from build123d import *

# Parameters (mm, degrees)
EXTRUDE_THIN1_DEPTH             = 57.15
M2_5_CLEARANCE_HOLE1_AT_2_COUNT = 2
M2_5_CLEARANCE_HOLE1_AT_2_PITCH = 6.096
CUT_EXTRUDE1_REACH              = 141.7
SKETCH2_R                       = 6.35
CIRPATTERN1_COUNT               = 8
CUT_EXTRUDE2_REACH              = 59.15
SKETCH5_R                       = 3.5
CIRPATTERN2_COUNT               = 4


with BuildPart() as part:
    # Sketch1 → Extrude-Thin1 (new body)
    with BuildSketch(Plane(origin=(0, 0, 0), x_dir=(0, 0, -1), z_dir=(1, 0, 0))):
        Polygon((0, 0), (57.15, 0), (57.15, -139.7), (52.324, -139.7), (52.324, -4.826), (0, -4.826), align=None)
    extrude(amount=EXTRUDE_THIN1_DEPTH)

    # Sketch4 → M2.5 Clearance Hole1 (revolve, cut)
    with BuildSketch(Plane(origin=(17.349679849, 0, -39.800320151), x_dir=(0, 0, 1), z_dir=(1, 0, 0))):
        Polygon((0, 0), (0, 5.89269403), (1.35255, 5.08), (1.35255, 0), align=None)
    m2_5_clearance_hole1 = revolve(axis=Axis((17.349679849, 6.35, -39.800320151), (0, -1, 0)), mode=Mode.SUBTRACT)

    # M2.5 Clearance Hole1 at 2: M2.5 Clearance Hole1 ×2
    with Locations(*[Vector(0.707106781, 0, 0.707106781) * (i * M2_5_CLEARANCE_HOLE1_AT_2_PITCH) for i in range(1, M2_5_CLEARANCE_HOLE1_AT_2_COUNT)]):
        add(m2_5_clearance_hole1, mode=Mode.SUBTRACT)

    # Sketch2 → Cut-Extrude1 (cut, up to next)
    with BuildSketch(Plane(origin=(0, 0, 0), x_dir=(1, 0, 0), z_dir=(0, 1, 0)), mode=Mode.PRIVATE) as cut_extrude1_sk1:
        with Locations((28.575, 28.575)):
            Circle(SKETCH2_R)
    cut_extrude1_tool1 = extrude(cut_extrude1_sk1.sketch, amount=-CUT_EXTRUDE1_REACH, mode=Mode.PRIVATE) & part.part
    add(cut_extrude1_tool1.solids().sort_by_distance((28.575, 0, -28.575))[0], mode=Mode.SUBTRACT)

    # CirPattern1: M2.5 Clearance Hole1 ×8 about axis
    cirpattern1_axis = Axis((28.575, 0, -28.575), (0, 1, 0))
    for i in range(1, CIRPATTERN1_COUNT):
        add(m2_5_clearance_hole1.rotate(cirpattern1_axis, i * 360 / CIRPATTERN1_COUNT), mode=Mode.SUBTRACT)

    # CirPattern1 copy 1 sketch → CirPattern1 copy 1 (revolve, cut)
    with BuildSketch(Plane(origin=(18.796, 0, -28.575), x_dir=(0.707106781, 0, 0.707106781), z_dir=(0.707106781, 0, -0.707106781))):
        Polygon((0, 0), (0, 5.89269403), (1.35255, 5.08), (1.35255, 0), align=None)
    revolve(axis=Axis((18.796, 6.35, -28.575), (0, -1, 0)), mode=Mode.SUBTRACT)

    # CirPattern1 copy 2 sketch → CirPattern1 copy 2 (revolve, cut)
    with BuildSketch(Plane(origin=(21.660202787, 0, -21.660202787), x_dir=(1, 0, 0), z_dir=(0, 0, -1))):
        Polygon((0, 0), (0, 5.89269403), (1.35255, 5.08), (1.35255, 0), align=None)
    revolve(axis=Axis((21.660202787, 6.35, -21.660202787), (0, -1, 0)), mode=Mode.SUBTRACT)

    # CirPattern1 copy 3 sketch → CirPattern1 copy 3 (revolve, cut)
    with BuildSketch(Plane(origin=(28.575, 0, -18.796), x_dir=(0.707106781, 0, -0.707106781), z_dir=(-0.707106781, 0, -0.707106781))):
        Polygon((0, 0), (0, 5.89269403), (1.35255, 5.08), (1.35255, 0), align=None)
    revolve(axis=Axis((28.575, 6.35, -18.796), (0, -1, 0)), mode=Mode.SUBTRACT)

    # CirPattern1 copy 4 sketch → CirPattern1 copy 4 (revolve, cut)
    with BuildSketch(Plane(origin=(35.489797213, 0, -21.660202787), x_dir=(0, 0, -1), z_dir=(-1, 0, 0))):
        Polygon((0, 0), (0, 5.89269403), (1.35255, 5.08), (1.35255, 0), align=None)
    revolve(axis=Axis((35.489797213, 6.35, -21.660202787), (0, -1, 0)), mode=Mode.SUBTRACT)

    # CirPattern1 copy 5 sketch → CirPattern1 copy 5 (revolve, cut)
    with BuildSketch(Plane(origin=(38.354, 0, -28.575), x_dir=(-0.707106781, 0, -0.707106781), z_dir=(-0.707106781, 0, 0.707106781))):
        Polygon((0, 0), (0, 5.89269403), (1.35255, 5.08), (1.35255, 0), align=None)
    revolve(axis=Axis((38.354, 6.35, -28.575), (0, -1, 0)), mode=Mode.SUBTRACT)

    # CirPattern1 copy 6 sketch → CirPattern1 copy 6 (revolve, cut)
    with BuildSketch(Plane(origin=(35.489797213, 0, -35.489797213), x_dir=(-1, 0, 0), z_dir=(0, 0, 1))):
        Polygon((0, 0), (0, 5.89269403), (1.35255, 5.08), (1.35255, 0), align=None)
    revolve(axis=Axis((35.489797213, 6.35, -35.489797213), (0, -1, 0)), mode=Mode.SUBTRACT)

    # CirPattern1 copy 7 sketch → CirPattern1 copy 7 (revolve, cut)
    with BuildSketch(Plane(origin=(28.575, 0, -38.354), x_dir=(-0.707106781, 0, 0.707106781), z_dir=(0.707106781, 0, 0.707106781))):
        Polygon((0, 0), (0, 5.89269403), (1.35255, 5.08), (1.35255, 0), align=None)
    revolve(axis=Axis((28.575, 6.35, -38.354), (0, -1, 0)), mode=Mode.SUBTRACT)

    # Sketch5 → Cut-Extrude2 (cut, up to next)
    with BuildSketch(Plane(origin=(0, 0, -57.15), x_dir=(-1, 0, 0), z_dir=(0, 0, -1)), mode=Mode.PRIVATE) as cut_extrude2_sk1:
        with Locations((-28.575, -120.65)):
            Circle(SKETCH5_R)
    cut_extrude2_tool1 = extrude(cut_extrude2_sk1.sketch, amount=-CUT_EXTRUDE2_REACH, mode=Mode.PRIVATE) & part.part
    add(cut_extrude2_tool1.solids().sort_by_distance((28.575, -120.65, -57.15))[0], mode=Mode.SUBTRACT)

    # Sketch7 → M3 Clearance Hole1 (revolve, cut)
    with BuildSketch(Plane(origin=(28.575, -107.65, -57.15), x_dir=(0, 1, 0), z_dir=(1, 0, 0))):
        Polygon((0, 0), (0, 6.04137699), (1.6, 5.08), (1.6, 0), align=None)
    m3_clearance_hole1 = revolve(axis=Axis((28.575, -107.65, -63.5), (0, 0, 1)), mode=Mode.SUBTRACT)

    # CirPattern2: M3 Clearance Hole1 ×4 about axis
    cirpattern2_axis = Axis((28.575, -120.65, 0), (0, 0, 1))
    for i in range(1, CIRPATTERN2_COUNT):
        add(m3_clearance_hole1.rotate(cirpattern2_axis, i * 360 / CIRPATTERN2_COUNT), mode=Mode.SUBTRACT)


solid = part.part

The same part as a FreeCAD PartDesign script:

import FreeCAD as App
import Part
import Sketcher
from FreeCAD import Vector
Q = App.Units.Quantity

doc = App.newDocument("Part")
body = doc.addObject("PartDesign::Body", "Body")

# Sketch on YZ plane
sketch1 = body.newObject("Sketcher::SketchObject", "Sketch")
sketch1.AttachmentSupport = (doc.getObject("YZ_Plane"), [""])
sketch1.MapMode = "FlatFace"
sketch1.addGeometry(Part.LineSegment(Vector(0, -57.1, 0), Vector(0, 0, 0)), False)
sketch1.addGeometry(Part.LineSegment(Vector(0, 0, 0), Vector(-4.8, 0, 0)), False)
sketch1.addGeometry(Part.LineSegment(Vector(-4.8, 0, 0), Vector(-4.8, -52.3, 0)), False)
sketch1.addGeometry(Part.LineSegment(Vector(-4.8, -52.3, 0), Vector(-139.7, -52.3, 0)), False)
sketch1.addGeometry(Part.LineSegment(Vector(-139.7, -52.3, 0), Vector(-139.7, -57.1, 0)), False)
sketch1.addGeometry(Part.LineSegment(Vector(-139.7, -57.1, 0), Vector(0, -57.1, 0)), False)
sketch1.addConstraint(Sketcher.Constraint("Coincident", 0, 2, 1, 1))
sketch1.addConstraint(Sketcher.Constraint("Coincident", 1, 2, 2, 1))
sketch1.addConstraint(Sketcher.Constraint("Coincident", 2, 2, 3, 1))
sketch1.addConstraint(Sketcher.Constraint("Coincident", 3, 2, 4, 1))
sketch1.addConstraint(Sketcher.Constraint("Coincident", 4, 2, 5, 1))
sketch1.addConstraint(Sketcher.Constraint("Coincident", 5, 2, 0, 1))
sketch1.addConstraint(Sketcher.Constraint("Vertical", 0))
sketch1.addConstraint(Sketcher.Constraint("Horizontal", 1))
sketch1.addConstraint(Sketcher.Constraint("Vertical", 2))
sketch1.addConstraint(Sketcher.Constraint("Horizontal", 3))
sketch1.addConstraint(Sketcher.Constraint("Vertical", 4))
sketch1.addConstraint(Sketcher.Constraint("Horizontal", 5))
sketch1.addConstraint(Sketcher.Constraint("Coincident", 0, 2, -1, 1))
sketch1.addConstraint(Sketcher.Constraint("Equal", 1, 4))
sketch1.addConstraint(Sketcher.Constraint("DistanceX", 5, 1, 5, 2, Q("5.5 in")))
sketch1.addConstraint(Sketcher.Constraint("DistanceX", 1, 2, 1, 1, Q("0.19 in")))
sketch1.addConstraint(Sketcher.Constraint("DistanceY", 0, 1, 0, 2, Q("2.25 in")))
pad1 = body.newObject("PartDesign::Pad", "Pad")
pad1.Profile = sketch1
pad1.Length = Q("2.25 in")

# Sketch on YZ plane
sketch2 = body.newObject("Sketcher::SketchObject", "Sketch001")
sketch2.AttachmentSupport = (doc.getObject("YZ_Plane"), [""])
sketch2.MapMode = "FlatFace"
sketch2.AttachmentOffset = App.Placement(Vector(0, 0, 17.34968), App.Rotation())
sketch2.addGeometry(Part.LineSegment(Vector(-5.9, -39.8, 0), Vector(0, -39.8, 0)), False)
sketch2.addGeometry(Part.LineSegment(Vector(0, -39.8, 0), Vector(0, -38.4, 0)), False)
sketch2.addGeometry(Part.LineSegment(Vector(0, -38.4, 0), Vector(-5.1, -38.4, 0)), False)
sketch2.addGeometry(Part.LineSegment(Vector(-5.1, -38.4, 0), Vector(-5.9, -39.8, 0)), False)
sketch2.addGeometry(Part.LineSegment(Vector(0, -39.8, 0), Vector(-5.9, -39.8, 0)), True)  # axis
sketch2.addConstraint(Sketcher.Constraint("Coincident", 0, 2, 1, 1))
sketch2.addConstraint(Sketcher.Constraint("Coincident", 1, 2, 2, 1))
sketch2.addConstraint(Sketcher.Constraint("Coincident", 2, 2, 3, 1))
sketch2.addConstraint(Sketcher.Constraint("Coincident", 3, 2, 0, 1))
sketch2.addConstraint(Sketcher.Constraint("Horizontal", 0))
sketch2.addConstraint(Sketcher.Constraint("Vertical", 1))
sketch2.addConstraint(Sketcher.Constraint("Horizontal", 2))
sketch2.addConstraint(Sketcher.Constraint("Horizontal", 4))
sketch2.addConstraint(Sketcher.Constraint("Coincident", 4, 1, 0, 2))
sketch2.addConstraint(Sketcher.Constraint("PointOnObject", 0, 2, -2))
sketch2.addConstraint(Sketcher.Constraint("Equal", 0, 4))
sketch2.addConstraint(Sketcher.Constraint("DistanceX", 2, 2, 2, 1, Q("0.2 in")))
sketch2.addConstraint(Sketcher.Constraint("Angle", 3, Q("-121 deg")))
sketch2.addConstraint(Sketcher.Constraint("DistanceY", 1, 1, 1, 2, Q("1.35255 mm")))
sketch2.addConstraint(Sketcher.Constraint("DistanceY", 0, 2, -1, 1, Q("39.80032 mm")))
groove = body.newObject("PartDesign::Groove", "Groove")
groove.Profile = sketch2
groove.ReferenceAxis = (sketch2, ["Axis0"])
groove.Angle = 360
doc.recompute()

datumline = body.newObject("PartDesign::Line", "DatumLine")
datumline.Placement = App.Placement(Vector(0, 0, 0), App.Rotation(Vector(0, 0, 1), Vector(0.707106781, 0, 0.707106781)))
linearpattern = body.newObject("PartDesign::LinearPattern", "LinearPattern")
linearpattern.Originals = [groove]
linearpattern.Direction = (datumline, [""])
linearpattern.Mode = "offset"
linearpattern.Offset = Q("0.24 in")
linearpattern.Occurrences = 2
body.Tip = linearpattern

# Sketch on XZ plane
sketch3 = body.newObject("Sketcher::SketchObject", "Sketch002")
sketch3.AttachmentSupport = (doc.getObject("XZ_Plane"), [""])
sketch3.MapMode = "FlatFace"
sketch3.addGeometry(Part.Circle(Vector(29, -29, 0), Vector(0, 0, 1), 6), False)
sketch3.addConstraint(Sketcher.Constraint("Diameter", 0, Q("0.5 in")))
sketch3.addConstraint(Sketcher.Constraint("DistanceX", -1, 1, 0, 3, Q("1.125 in")))
sketch3.addConstraint(Sketcher.Constraint("DistanceY", 0, 3, -1, 1, Q("1.125 in")))
pocket1 = body.newObject("PartDesign::Pocket", "Pocket")
pocket1.Profile = sketch3
pocket1.Type = "UpToFirst"
pocket1.Reversed = True
doc.recompute()

datumline2 = body.newObject("PartDesign::Line", "DatumLine001")
datumline2.Placement = App.Placement(Vector(28.575, 0, -28.575), App.Rotation(Vector(0, 0, 1), Vector(0, 1, 0)))
polarpattern = body.newObject("PartDesign::PolarPattern", "PolarPattern")
polarpattern.Originals = [groove]
polarpattern.Axis = (datumline2, [""])
polarpattern.Angle = 360
polarpattern.Occurrences = 8
body.Tip = polarpattern

# Sketch on an angled plane
sketch4 = body.newObject("Sketcher::SketchObject", "Sketch003")
sketch4.Placement = App.Placement(Vector(18.796, 0, -28.575), App.Rotation(Vector(0.707106781, 0, 0.707106781), Vector(0, -0.999999999, 0), Vector(0.707106781, 0, -0.707106781), "ZXY"))
sketch4.addGeometry(Part.LineSegment(Vector(0, 5.9, 0), Vector(0, 0, 0)), False)
sketch4.addGeometry(Part.LineSegment(Vector(0, 0, 0), Vector(1.4, 0, 0)), False)
sketch4.addGeometry(Part.LineSegment(Vector(1.4, 0, 0), Vector(1.4, 5.1, 0)), False)
sketch4.addGeometry(Part.LineSegment(Vector(1.4, 5.1, 0), Vector(0, 5.9, 0)), False)
sketch4.addConstraint(Sketcher.Constraint("Coincident", 0, 2, 1, 1))
sketch4.addConstraint(Sketcher.Constraint("Coincident", 1, 2, 2, 1))
sketch4.addConstraint(Sketcher.Constraint("Coincident", 2, 2, 3, 1))
sketch4.addConstraint(Sketcher.Constraint("Coincident", 3, 2, 0, 1))
sketch4.addConstraint(Sketcher.Constraint("Vertical", 0))
sketch4.addConstraint(Sketcher.Constraint("Horizontal", 1))
sketch4.addConstraint(Sketcher.Constraint("Vertical", 2))
sketch4.addConstraint(Sketcher.Constraint("Coincident", 0, 2, -1, 1))
sketch4.addConstraint(Sketcher.Constraint("DistanceY", 2, 1, 2, 2, Q("0.2 in")))
sketch4.addConstraint(Sketcher.Constraint("Angle", 3, Q("149 deg")))
sketch4.addConstraint(Sketcher.Constraint("DistanceX", 1, 1, 1, 2, Q("1.35255 mm")))
groove2 = body.newObject("PartDesign::Groove", "Groove001")
groove2.Profile = sketch4
groove2.ReferenceAxis = (sketch4, ["V_Axis"])
groove2.Angle = 360

# Sketch on XY plane
sketch5 = body.newObject("Sketcher::SketchObject", "Sketch004")
sketch5.AttachmentSupport = (doc.getObject("XY_Plane"), [""])
sketch5.MapMode = "FlatFace"
sketch5.AttachmentOffset = App.Placement(Vector(0, 0, -21.660203), App.Rotation())
sketch5.addGeometry(Part.LineSegment(Vector(21.7, -5.9, 0), Vector(21.7, 0, 0)), False)
sketch5.addGeometry(Part.LineSegment(Vector(21.7, 0, 0), Vector(23, 0, 0)), False)
sketch5.addGeometry(Part.LineSegment(Vector(23, 0, 0), Vector(23, -5.1, 0)), False)
sketch5.addGeometry(Part.LineSegment(Vector(23, -5.1, 0), Vector(21.7, -5.9, 0)), False)
sketch5.addGeometry(Part.LineSegment(Vector(21.7, 0, 0), Vector(21.7, -5.9, 0)), True)  # axis
sketch5.addConstraint(Sketcher.Constraint("Coincident", 0, 2, 1, 1))
sketch5.addConstraint(Sketcher.Constraint("Coincident", 1, 2, 2, 1))
sketch5.addConstraint(Sketcher.Constraint("Coincident", 2, 2, 3, 1))
sketch5.addConstraint(Sketcher.Constraint("Coincident", 3, 2, 0, 1))
sketch5.addConstraint(Sketcher.Constraint("Vertical", 0))
sketch5.addConstraint(Sketcher.Constraint("Horizontal", 1))
sketch5.addConstraint(Sketcher.Constraint("Vertical", 2))
sketch5.addConstraint(Sketcher.Constraint("Vertical", 4))
sketch5.addConstraint(Sketcher.Constraint("Coincident", 4, 1, 0, 2))
sketch5.addConstraint(Sketcher.Constraint("PointOnObject", 0, 2, -1))
sketch5.addConstraint(Sketcher.Constraint("Equal", 0, 4))
sketch5.addConstraint(Sketcher.Constraint("DistanceY", 2, 2, 2, 1, Q("0.2 in")))
sketch5.addConstraint(Sketcher.Constraint("Angle", 3, Q("-149 deg")))
sketch5.addConstraint(Sketcher.Constraint("DistanceX", 1, 1, 1, 2, Q("1.35255 mm")))
sketch5.addConstraint(Sketcher.Constraint("DistanceX", -1, 1, 0, 2, Q("21.660203 mm")))
groove3 = body.newObject("PartDesign::Groove", "Groove002")
groove3.Profile = sketch5
groove3.ReferenceAxis = (sketch5, ["Axis0"])
groove3.Angle = 360

# Sketch on an angled plane
sketch6 = body.newObject("Sketcher::SketchObject", "Sketch005")
sketch6.Placement = App.Placement(Vector(28.575, 0, -18.796), App.Rotation(Vector(0.707106781, 0, -0.707106781), Vector(0, -0.999999999, 0), Vector(-0.707106781, 0, -0.707106781), "ZXY"))
sketch6.addGeometry(Part.LineSegment(Vector(0, 5.9, 0), Vector(0, 0, 0)), False)
sketch6.addGeometry(Part.LineSegment(Vector(0, 0, 0), Vector(1.4, 0, 0)), False)
sketch6.addGeometry(Part.LineSegment(Vector(1.4, 0, 0), Vector(1.4, 5.1, 0)), False)
sketch6.addGeometry(Part.LineSegment(Vector(1.4, 5.1, 0), Vector(0, 5.9, 0)), False)
sketch6.addConstraint(Sketcher.Constraint("Coincident", 0, 2, 1, 1))
sketch6.addConstraint(Sketcher.Constraint("Coincident", 1, 2, 2, 1))
sketch6.addConstraint(Sketcher.Constraint("Coincident", 2, 2, 3, 1))
sketch6.addConstraint(Sketcher.Constraint("Coincident", 3, 2, 0, 1))
sketch6.addConstraint(Sketcher.Constraint("Vertical", 0))
sketch6.addConstraint(Sketcher.Constraint("Horizontal", 1))
sketch6.addConstraint(Sketcher.Constraint("Vertical", 2))
sketch6.addConstraint(Sketcher.Constraint("Coincident", 0, 2, -1, 1))
sketch6.addConstraint(Sketcher.Constraint("DistanceY", 2, 1, 2, 2, Q("0.2 in")))
sketch6.addConstraint(Sketcher.Constraint("Angle", 3, Q("149 deg")))
sketch6.addConstraint(Sketcher.Constraint("DistanceX", 1, 1, 1, 2, Q("1.35255 mm")))
groove4 = body.newObject("PartDesign::Groove", "Groove003")
groove4.Profile = sketch6
groove4.ReferenceAxis = (sketch6, ["V_Axis"])
groove4.Angle = 360

# Sketch on YZ plane
sketch7 = body.newObject("Sketcher::SketchObject", "Sketch006")
sketch7.AttachmentSupport = (doc.getObject("YZ_Plane"), [""])
sketch7.MapMode = "FlatFace"
sketch7.AttachmentOffset = App.Placement(Vector(0, 0, 35.489797), App.Rotation())
sketch7.addGeometry(Part.LineSegment(Vector(-5.9, -21.7, 0), Vector(0, -21.7, 0)), False)
sketch7.addGeometry(Part.LineSegment(Vector(0, -21.7, 0), Vector(0, -23, 0)), False)
sketch7.addGeometry(Part.LineSegment(Vector(0, -23, 0), Vector(-5.1, -23, 0)), False)
sketch7.addGeometry(Part.LineSegment(Vector(-5.1, -23, 0), Vector(-5.9, -21.7, 0)), False)
sketch7.addGeometry(Part.LineSegment(Vector(0, -21.7, 0), Vector(-5.9, -21.7, 0)), True)  # axis
sketch7.addConstraint(Sketcher.Constraint("Coincident", 0, 2, 1, 1))
sketch7.addConstraint(Sketcher.Constraint("Coincident", 1, 2, 2, 1))
sketch7.addConstraint(Sketcher.Constraint("Coincident", 2, 2, 3, 1))
sketch7.addConstraint(Sketcher.Constraint("Coincident", 3, 2, 0, 1))
sketch7.addConstraint(Sketcher.Constraint("Horizontal", 0))
sketch7.addConstraint(Sketcher.Constraint("Vertical", 1))
sketch7.addConstraint(Sketcher.Constraint("Horizontal", 2))
sketch7.addConstraint(Sketcher.Constraint("Horizontal", 4))
sketch7.addConstraint(Sketcher.Constraint("Coincident", 4, 1, 0, 2))
sketch7.addConstraint(Sketcher.Constraint("PointOnObject", 0, 2, -2))
sketch7.addConstraint(Sketcher.Constraint("Equal", 0, 4))
sketch7.addConstraint(Sketcher.Constraint("DistanceX", 2, 2, 2, 1, Q("0.2 in")))
sketch7.addConstraint(Sketcher.Constraint("Angle", 3, Q("121 deg")))
sketch7.addConstraint(Sketcher.Constraint("DistanceY", 1, 2, 1, 1, Q("1.35255 mm")))
sketch7.addConstraint(Sketcher.Constraint("DistanceY", 0, 2, -1, 1, Q("21.660203 mm")))
groove5 = body.newObject("PartDesign::Groove", "Groove004")
groove5.Profile = sketch7
groove5.ReferenceAxis = (sketch7, ["Axis0"])
groove5.Angle = 360

# Sketch on an angled plane
sketch8 = body.newObject("Sketcher::SketchObject", "Sketch007")
sketch8.Placement = App.Placement(Vector(38.354, 0, -28.575), App.Rotation(Vector(-0.707106781, 0, -0.707106781), Vector(0, -0.999999999, 0), Vector(-0.707106781, 0, 0.707106781), "ZXY"))
sketch8.addGeometry(Part.LineSegment(Vector(0, 5.9, 0), Vector(0, 0, 0)), False)
sketch8.addGeometry(Part.LineSegment(Vector(0, 0, 0), Vector(1.4, 0, 0)), False)
sketch8.addGeometry(Part.LineSegment(Vector(1.4, 0, 0), Vector(1.4, 5.1, 0)), False)
sketch8.addGeometry(Part.LineSegment(Vector(1.4, 5.1, 0), Vector(0, 5.9, 0)), False)
sketch8.addConstraint(Sketcher.Constraint("Coincident", 0, 2, 1, 1))
sketch8.addConstraint(Sketcher.Constraint("Coincident", 1, 2, 2, 1))
sketch8.addConstraint(Sketcher.Constraint("Coincident", 2, 2, 3, 1))
sketch8.addConstraint(Sketcher.Constraint("Coincident", 3, 2, 0, 1))
sketch8.addConstraint(Sketcher.Constraint("Vertical", 0))
sketch8.addConstraint(Sketcher.Constraint("Horizontal", 1))
sketch8.addConstraint(Sketcher.Constraint("Vertical", 2))
sketch8.addConstraint(Sketcher.Constraint("Coincident", 0, 2, -1, 1))
sketch8.addConstraint(Sketcher.Constraint("DistanceY", 2, 1, 2, 2, Q("0.2 in")))
sketch8.addConstraint(Sketcher.Constraint("Angle", 3, Q("149 deg")))
sketch8.addConstraint(Sketcher.Constraint("DistanceX", 1, 1, 1, 2, Q("1.35255 mm")))
groove6 = body.newObject("PartDesign::Groove", "Groove005")
groove6.Profile = sketch8
groove6.ReferenceAxis = (sketch8, ["V_Axis"])
groove6.Angle = 360

# Sketch on XY plane
sketch9 = body.newObject("Sketcher::SketchObject", "Sketch008")
sketch9.AttachmentSupport = (doc.getObject("XY_Plane"), [""])
sketch9.MapMode = "FlatFace"
sketch9.AttachmentOffset = App.Placement(Vector(0, 0, -35.489797), App.Rotation())
sketch9.addGeometry(Part.LineSegment(Vector(35.5, -5.9, 0), Vector(35.5, 0, 0)), False)
sketch9.addGeometry(Part.LineSegment(Vector(35.5, 0, 0), Vector(34.1, 0, 0)), False)
sketch9.addGeometry(Part.LineSegment(Vector(34.1, 0, 0), Vector(34.1, -5.1, 0)), False)
sketch9.addGeometry(Part.LineSegment(Vector(34.1, -5.1, 0), Vector(35.5, -5.9, 0)), False)
sketch9.addGeometry(Part.LineSegment(Vector(35.5, 0, 0), Vector(35.5, -5.9, 0)), True)  # axis
sketch9.addConstraint(Sketcher.Constraint("Coincident", 0, 2, 1, 1))
sketch9.addConstraint(Sketcher.Constraint("Coincident", 1, 2, 2, 1))
sketch9.addConstraint(Sketcher.Constraint("Coincident", 2, 2, 3, 1))
sketch9.addConstraint(Sketcher.Constraint("Coincident", 3, 2, 0, 1))
sketch9.addConstraint(Sketcher.Constraint("Vertical", 0))
sketch9.addConstraint(Sketcher.Constraint("Horizontal", 1))
sketch9.addConstraint(Sketcher.Constraint("Vertical", 2))
sketch9.addConstraint(Sketcher.Constraint("Vertical", 4))
sketch9.addConstraint(Sketcher.Constraint("Coincident", 4, 1, 0, 2))
sketch9.addConstraint(Sketcher.Constraint("PointOnObject", 0, 2, -1))
sketch9.addConstraint(Sketcher.Constraint("Equal", 0, 4))
sketch9.addConstraint(Sketcher.Constraint("DistanceY", 2, 2, 2, 1, Q("0.2 in")))
sketch9.addConstraint(Sketcher.Constraint("Angle", 3, Q("-31 deg")))
sketch9.addConstraint(Sketcher.Constraint("DistanceX", 1, 2, 1, 1, Q("1.35255 mm")))
sketch9.addConstraint(Sketcher.Constraint("DistanceX", -1, 1, 0, 2, Q("35.489797 mm")))
groove7 = body.newObject("PartDesign::Groove", "Groove006")
groove7.Profile = sketch9
groove7.ReferenceAxis = (sketch9, ["Axis0"])
groove7.Angle = 360

# Sketch on an angled plane
sketch10 = body.newObject("Sketcher::SketchObject", "Sketch009")
sketch10.Placement = App.Placement(Vector(28.575, 0, -38.354), App.Rotation(Vector(-0.707106781, 0, 0.707106781), Vector(0, -0.999999999, 0), Vector(0.707106781, 0, 0.707106781), "ZXY"))
sketch10.addGeometry(Part.LineSegment(Vector(0, 5.9, 0), Vector(0, 0, 0)), False)
sketch10.addGeometry(Part.LineSegment(Vector(0, 0, 0), Vector(1.4, 0, 0)), False)
sketch10.addGeometry(Part.LineSegment(Vector(1.4, 0, 0), Vector(1.4, 5.1, 0)), False)
sketch10.addGeometry(Part.LineSegment(Vector(1.4, 5.1, 0), Vector(0, 5.9, 0)), False)
sketch10.addConstraint(Sketcher.Constraint("Coincident", 0, 2, 1, 1))
sketch10.addConstraint(Sketcher.Constraint("Coincident", 1, 2, 2, 1))
sketch10.addConstraint(Sketcher.Constraint("Coincident", 2, 2, 3, 1))
sketch10.addConstraint(Sketcher.Constraint("Coincident", 3, 2, 0, 1))
sketch10.addConstraint(Sketcher.Constraint("Vertical", 0))
sketch10.addConstraint(Sketcher.Constraint("Horizontal", 1))
sketch10.addConstraint(Sketcher.Constraint("Vertical", 2))
sketch10.addConstraint(Sketcher.Constraint("Coincident", 0, 2, -1, 1))
sketch10.addConstraint(Sketcher.Constraint("DistanceY", 2, 1, 2, 2, Q("0.2 in")))
sketch10.addConstraint(Sketcher.Constraint("Angle", 3, Q("149 deg")))
sketch10.addConstraint(Sketcher.Constraint("DistanceX", 1, 1, 1, 2, Q("1.35255 mm")))
groove8 = body.newObject("PartDesign::Groove", "Groove007")
groove8.Profile = sketch10
groove8.ReferenceAxis = (sketch10, ["V_Axis"])
groove8.Angle = 360

# Sketch on XY plane
sketch11 = body.newObject("Sketcher::SketchObject", "Sketch010")
sketch11.AttachmentSupport = (doc.getObject("XY_Plane"), [""])
sketch11.MapMode = "FlatFace"
sketch11.AttachmentOffset = App.Placement(Vector(0, 0, -2.25 * 25.4), App.Rotation())
sketch11.addGeometry(Part.Circle(Vector(28.6, -120.7, 0), Vector(0, 0, 1), 3.5), False)
sketch11.addConstraint(Sketcher.Constraint("Diameter", 0, Q("7 mm")))
sketch11.addConstraint(Sketcher.Constraint("DistanceY", 0, 3, -1, 1, Q("4.75 in")))
sketch11.addConstraint(Sketcher.Constraint("DistanceX", -1, 1, 0, 3, Q("1.125 in")))
pocket2 = body.newObject("PartDesign::Pocket", "Pocket001")
pocket2.Profile = sketch11
pocket2.Type = "UpToFirst"
pocket2.Reversed = True

# Sketch on YZ plane
sketch12 = body.newObject("Sketcher::SketchObject", "Sketch011")
sketch12.AttachmentSupport = (doc.getObject("YZ_Plane"), [""])
sketch12.MapMode = "FlatFace"
sketch12.AttachmentOffset = App.Placement(Vector(0, 0, 1.125 * 25.4), App.Rotation())
sketch12.addGeometry(Part.LineSegment(Vector(-107.7, -51.1, 0), Vector(-107.7, -57.1, 0)), False)
sketch12.addGeometry(Part.LineSegment(Vector(-107.7, -57.1, 0), Vector(-106, -57.1, 0)), False)
sketch12.addGeometry(Part.LineSegment(Vector(-106, -57.1, 0), Vector(-106, -52.1, 0)), False)
sketch12.addGeometry(Part.LineSegment(Vector(-106, -52.1, 0), Vector(-107.7, -51.1, 0)), False)
sketch12.addGeometry(Part.LineSegment(Vector(-107.7, -57.1, 0), Vector(-107.7, -51.1, 0)), True)  # axis
sketch12.addConstraint(Sketcher.Constraint("Coincident", 0, 2, 1, 1))
sketch12.addConstraint(Sketcher.Constraint("Coincident", 1, 2, 2, 1))
sketch12.addConstraint(Sketcher.Constraint("Coincident", 2, 2, 3, 1))
sketch12.addConstraint(Sketcher.Constraint("Coincident", 3, 2, 0, 1))
sketch12.addConstraint(Sketcher.Constraint("Vertical", 0))
sketch12.addConstraint(Sketcher.Constraint("Horizontal", 1))
sketch12.addConstraint(Sketcher.Constraint("Vertical", 2))
sketch12.addConstraint(Sketcher.Constraint("Vertical", 4))
sketch12.addConstraint(Sketcher.Constraint("Coincident", 4, 1, 0, 2))
sketch12.addConstraint(Sketcher.Constraint("Equal", 0, 4))
sketch12.addConstraint(Sketcher.Constraint("DistanceY", 2, 1, 2, 2, Q("0.2 in")))
sketch12.addConstraint(Sketcher.Constraint("Angle", 3, Q("149 deg")))
sketch12.addConstraint(Sketcher.Constraint("DistanceY", 0, 2, -1, 1, Q("2.25 in")))
sketch12.addConstraint(Sketcher.Constraint("DistanceX", 1, 1, 1, 2, Q("1.6 mm")))
sketch12.addConstraint(Sketcher.Constraint("DistanceX", 0, 2, -1, 1, Q("107.65 mm")))
groove9 = body.newObject("PartDesign::Groove", "Groove008")
groove9.Profile = sketch12
groove9.ReferenceAxis = (sketch12, ["Axis0"])
groove9.Angle = 360
doc.recompute()

datumline3 = body.newObject("PartDesign::Line", "DatumLine002")
datumline3.Placement = App.Placement(Vector(28.575, -120.65, 0), App.Rotation(Vector(0, 0, 1), Vector(0, 0, 1)))
polarpattern2 = body.newObject("PartDesign::PolarPattern", "PolarPattern001")
polarpattern2.Originals = [groove9]
polarpattern2.Axis = (datumline3, [""])
polarpattern2.Angle = 360
polarpattern2.Occurrences = 4
body.Tip = polarpattern2

doc.recompute()
